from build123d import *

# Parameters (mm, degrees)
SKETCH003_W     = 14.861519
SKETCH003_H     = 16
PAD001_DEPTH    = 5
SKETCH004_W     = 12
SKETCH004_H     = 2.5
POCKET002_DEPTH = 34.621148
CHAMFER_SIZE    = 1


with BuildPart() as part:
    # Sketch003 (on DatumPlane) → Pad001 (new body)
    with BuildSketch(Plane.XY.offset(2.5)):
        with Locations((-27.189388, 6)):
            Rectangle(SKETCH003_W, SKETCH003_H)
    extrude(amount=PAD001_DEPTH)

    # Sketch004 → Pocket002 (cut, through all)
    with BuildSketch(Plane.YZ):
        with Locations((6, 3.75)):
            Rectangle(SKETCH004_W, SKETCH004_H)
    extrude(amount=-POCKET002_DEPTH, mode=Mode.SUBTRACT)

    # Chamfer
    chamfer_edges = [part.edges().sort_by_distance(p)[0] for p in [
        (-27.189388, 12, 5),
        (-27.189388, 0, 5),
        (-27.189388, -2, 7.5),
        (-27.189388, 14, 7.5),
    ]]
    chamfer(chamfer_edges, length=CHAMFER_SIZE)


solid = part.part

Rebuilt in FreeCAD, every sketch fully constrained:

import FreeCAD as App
import Part
import Sketcher
from FreeCAD import Vector
Q = App.Units.Quantity


def edges_at(feature, points):
    """Names of the edges that pass closest to the given points."""
    edges = feature.Shape.Edges
    near = lambda p: min(range(len(edges)), key=lambda i: edges[i].distToShape(Part.Vertex(*p))[0])
    return sorted({f"Edge{near(p) + 1}" for p in points})


def add_polygon(sketch, points):
    """Adds a closed chain of lines whose ends are joined by coincident constraints."""
    first, n = sketch.GeometryCount, len(points)
    for a, b in zip(points, points[1:] + points[:1]):
        sketch.addGeometry(Part.LineSegment(App.Vector(*a, 0), App.Vector(*b, 0)), False)
    for i in range(n):
        sketch.addConstraint(Sketcher.Constraint("Coincident", first + i, 2, first + (i + 1) % n, 1))

doc = App.newDocument("Part")
body = doc.addObject("PartDesign::Body", "Body")

# Sketch on XY plane
sketch1 = body.newObject("Sketcher::SketchObject", "Sketch")
sketch1.AttachmentSupport = (doc.getObject("XY_Plane"), [""])
sketch1.MapMode = "FlatFace"
sketch1.AttachmentOffset = App.Placement(Vector(0, 0, 2.5), App.Rotation())
add_polygon(sketch1, [(-35, 14), (-35, -2), (-20, -2), (-20, 14)])  # lines 0-3
sketch1.addConstraint([
    Sketcher.Constraint("Vertical", 0),
    Sketcher.Constraint("Horizontal", 1),
    Sketcher.Constraint("Vertical", 2),
    Sketcher.Constraint("Horizontal", 3),
    Sketcher.Constraint("DistanceY", 0, 2, 0, 1, Q("16 mm")),
    Sketcher.Constraint("DistanceY", 0, 2, -1, 1, Q("2 mm")),
    Sketcher.Constraint("DistanceX", 1, 1, 1, 2, Q("14.861519 mm")),
    Sketcher.Constraint("DistanceX", 1, 2, -1, 1, Q("19.758629 mm")),
])
pad1 = body.newObject("PartDesign::Pad", "Pad")
pad1.Profile = sketch1
pad1.Length = 5

# Sketch on YZ plane
sketch2 = body.newObject("Sketcher::SketchObject", "Sketch001")
sketch2.AttachmentSupport = (doc.getObject("YZ_Plane"), [""])
sketch2.MapMode = "FlatFace"
add_polygon(sketch2, [(0, 5), (0, 2.5), (12, 2.5), (12, 5)])  # lines 0-3
sketch2.addConstraint([
    Sketcher.Constraint("Vertical", 0),
    Sketcher.Constraint("Horizontal", 1),
    Sketcher.Constraint("Vertical", 2),
    Sketcher.Constraint("Horizontal", 3),
    Sketcher.Constraint("PointOnObject", 0, 2, -2),
    Sketcher.Constraint("DistanceX", 1, 1, 1, 2, Q("12 mm")),
    Sketcher.Constraint("DistanceY", 0, 2, 0, 1, Q("2.5 mm")),
    Sketcher.Constraint("DistanceY", -1, 1, 2, 2, Q("5 mm")),
])
pocket1 = body.newObject("PartDesign::Pocket", "Pocket")
pocket1.Profile = sketch2
pocket1.Type = "ThroughAll"
doc.recompute()

chamfer = body.newObject("PartDesign::Chamfer", "Chamfer")
chamfer.Base = (pocket1, edges_at(pocket1, [
    (-27.189, 12, 5),
    (-27.189, 0, 5),
    (-27.189, -2, 7.5),
    (-27.189, 14, 7.5),
]))
chamfer.Size = 1

doc.recompute()
